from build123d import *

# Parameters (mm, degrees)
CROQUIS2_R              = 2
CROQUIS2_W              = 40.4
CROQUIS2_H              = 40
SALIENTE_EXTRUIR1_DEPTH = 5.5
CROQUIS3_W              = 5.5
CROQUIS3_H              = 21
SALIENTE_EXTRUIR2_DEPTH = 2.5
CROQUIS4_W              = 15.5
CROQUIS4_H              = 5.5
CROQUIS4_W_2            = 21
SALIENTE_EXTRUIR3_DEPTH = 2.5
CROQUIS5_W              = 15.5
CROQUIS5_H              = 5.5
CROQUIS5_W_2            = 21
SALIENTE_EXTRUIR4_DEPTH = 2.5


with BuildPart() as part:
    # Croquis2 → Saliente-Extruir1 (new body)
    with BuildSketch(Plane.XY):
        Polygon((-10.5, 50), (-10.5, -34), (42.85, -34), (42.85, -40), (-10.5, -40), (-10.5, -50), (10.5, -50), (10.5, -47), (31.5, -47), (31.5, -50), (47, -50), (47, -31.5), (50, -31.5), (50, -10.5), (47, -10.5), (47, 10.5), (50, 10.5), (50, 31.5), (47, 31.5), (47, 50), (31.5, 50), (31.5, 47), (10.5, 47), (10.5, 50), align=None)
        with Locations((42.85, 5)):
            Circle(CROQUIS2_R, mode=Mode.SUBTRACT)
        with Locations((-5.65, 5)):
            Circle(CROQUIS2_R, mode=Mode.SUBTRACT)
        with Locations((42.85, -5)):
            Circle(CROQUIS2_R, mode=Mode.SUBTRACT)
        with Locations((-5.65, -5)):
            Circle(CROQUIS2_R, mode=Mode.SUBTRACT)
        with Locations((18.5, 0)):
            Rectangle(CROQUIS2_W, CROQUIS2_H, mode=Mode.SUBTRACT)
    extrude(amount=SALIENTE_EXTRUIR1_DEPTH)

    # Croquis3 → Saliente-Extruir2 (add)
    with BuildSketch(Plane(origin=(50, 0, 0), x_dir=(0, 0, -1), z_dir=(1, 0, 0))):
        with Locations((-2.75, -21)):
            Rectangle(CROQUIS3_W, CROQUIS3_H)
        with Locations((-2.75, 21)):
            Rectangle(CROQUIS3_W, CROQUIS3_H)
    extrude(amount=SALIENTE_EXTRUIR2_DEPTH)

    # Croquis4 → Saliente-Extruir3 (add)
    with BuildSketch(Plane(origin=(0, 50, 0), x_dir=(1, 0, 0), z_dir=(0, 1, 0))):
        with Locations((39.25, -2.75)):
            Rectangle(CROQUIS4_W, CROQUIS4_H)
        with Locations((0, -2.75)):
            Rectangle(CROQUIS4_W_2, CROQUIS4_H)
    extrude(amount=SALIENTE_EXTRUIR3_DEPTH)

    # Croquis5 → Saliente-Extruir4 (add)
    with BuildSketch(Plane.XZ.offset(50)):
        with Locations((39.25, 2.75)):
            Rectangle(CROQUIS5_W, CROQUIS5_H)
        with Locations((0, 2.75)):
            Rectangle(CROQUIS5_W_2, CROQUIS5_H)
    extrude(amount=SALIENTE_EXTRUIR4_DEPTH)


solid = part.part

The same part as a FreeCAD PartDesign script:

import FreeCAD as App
import Part
import Sketcher


def add_polygon(sketch, points):
    """Adds a closed chain of lines whose ends are joined by coincident constraints."""
    first, n = sketch.GeometryCount, len(points)
    for a, b in zip(points, points[1:] + points[:1]):
        sketch.addGeometry(Part.LineSegment(App.Vector(*a, 0), App.Vector(*b, 0)), False)
    for i in range(n):
        sketch.addConstraint(Sketcher.Constraint("Coincident", first + i, 2, first + (i + 1) % n, 1))

doc = App.newDocument("Part")
body = doc.addObject("PartDesign::Body", "Body")

sketch1 = doc.addObject("Sketcher::SketchObject", "Sketch")
body.addObject(sketch1)
sketch1.AttachmentSupport = (doc.XY_Plane, [""])
sketch1.MapMode = "FlatFace"
add_polygon(sketch1, [(-10.5, 50), (-10.5, -34), (42.85, -34), (42.85, -40), (-10.5, -40), (-10.5, -50), (10.5, -50), (10.5, -47), (31.5, -47), (31.5, -50), (47, -50), (47, -31.5), (50, -31.5), (50, -10.5), (47, -10.5), (47, 10.5), (50, 10.5), (50, 31.5), (47, 31.5), (47, 50), (31.5, 50), (31.5, 47), (10.5, 47), (10.5, 50)])
sketch1.addGeometry(Part.Circle(App.Vector(-5.65, -5, 0), App.Vector(0, 0, 1), 2), False)
sketch1.addGeometry(Part.Circle(App.Vector(42.85, -5, 0), App.Vector(0, 0, 1), 2), False)
sketch1.addGeometry(Part.Circle(App.Vector(-5.65, 5, 0), App.Vector(0, 0, 1), 2), False)
add_polygon(sketch1, [(38.7, -20), (-1.7, -20), (-1.7, 20), (38.7, 20)])
sketch1.addGeometry(Part.Circle(App.Vector(42.85, 5, 0), App.Vector(0, 0, 1), 2), False)
sketch1.addConstraint([
    Sketcher.Constraint("Vertical", 0),
    Sketcher.Constraint("Horizontal", 1),
    Sketcher.Constraint("Vertical", 2),
    Sketcher.Constraint("Horizontal", 3),
    Sketcher.Constraint("Vertical", 4),
    Sketcher.Constraint("Horizontal", 5),
    Sketcher.Constraint("Vertical", 6),
    Sketcher.Constraint("Horizontal", 7),
    Sketcher.Constraint("Vertical", 8),
    Sketcher.Constraint("Horizontal", 9),
    Sketcher.Constraint("Vertical", 10),
    Sketcher.Constraint("Horizontal", 11),
    Sketcher.Constraint("Vertical", 12),
    Sketcher.Constraint("Horizontal", 13),
    Sketcher.Constraint("Vertical", 14),
    Sketcher.Constraint("Horizontal", 15),
    Sketcher.Constraint("Vertical", 16),
    Sketcher.Constraint("Horizontal", 17),
    Sketcher.Constraint("Vertical", 18),
    Sketcher.Constraint("Horizontal", 19),
    Sketcher.Constraint("Vertical", 20),
    Sketcher.Constraint("Horizontal", 21),
    Sketcher.Constraint("Vertical", 22),
    Sketcher.Constraint("Horizontal", 23),
    Sketcher.Constraint("Horizontal", 27),
    Sketcher.Constraint("Vertical", 28),
    Sketcher.Constraint("Horizontal", 29),
    Sketcher.Constraint("Vertical", 30),
    Sketcher.Constraint("Equal", 24, 25),
    Sketcher.Constraint("Equal", 25, 26),
    Sketcher.Constraint("Equal", 26, 31),
    Sketcher.Constraint("Symmetric", 4, 2, 22, 2, -1, 1),
    Sketcher.Constraint("Symmetric", 24, 3, 26, 3, -1),
    Sketcher.Constraint("Symmetric", 25, 3, 31, 3, -1),
    Sketcher.Constraint("Symmetric", 12, 2, 15, 2, -1),
    Sketcher.Constraint("Symmetric", 10, 2, 17, 2, -1),
    Sketcher.Constraint("Symmetric", 8, 2, 19, 2, -1),
    Sketcher.Constraint("Symmetric", 6, 2, 21, 2, -1),
    Sketcher.Constraint("Horizontal", 24, 3, 25, 3),
    Sketcher.Constraint("Horizontal", 5, 2, 8, 2),
    Sketcher.Constraint("Vertical", 31, 3, 1, 2),
    Sketcher.Constraint("Vertical", 0, 2, 3, 2),
    Sketcher.Constraint("Vertical", 10, 2, 13, 2),
    Sketcher.Constraint("Equal", 5, 7),
    Sketcher.Constraint("Equal", 17, 6),
    Sketcher.Constraint("Equal", 23, 12),
    Sketcher.Constraint("Equal", 12, 14),
    Sketcher.Constraint("Diameter", 24, 4.0),
    Sketcher.Constraint("DistanceX", 5, 1, 5, 2, 21.0),
    Sketcher.Constraint("DistanceX", 11, 1, 11, 2, 3.0),
    Sketcher.Constraint("DistanceY", 0, 2, 0, 1, 84.0),
    Sketcher.Constraint("DistanceY", 2, 2, 2, 1, 6.0),
    Sketcher.Constraint("DistanceY", 4, 2, 4, 1, 10.0),
    Sketcher.Constraint("DistanceY", 28, 1, 28, 2, 40.0),
    Sketcher.Constraint("DistanceX", 9, 1, 9, 2, 15.5),
    Sketcher.Constraint("DistanceX", 27, 2, 27, 1, 40.4),
    Sketcher.Constraint("DistanceY", 24, 3, -1, 1, 5.0),
    Sketcher.Constraint("DistanceY", 27, 2, -1, 1, 20.0),
    Sketcher.Constraint("DistanceX", 1, 1, 1, 2, 53.35),
    Sketcher.Constraint("DistanceX", 27, 2, -1, 1, 1.7),
    Sketcher.Constraint("DistanceX", 24, 3, 25, 3, 48.5),
])
pad1 = doc.addObject("PartDesign::Pad", "Pad")
body.addObject(pad1)
pad1.Profile = sketch1
pad1.Length = 5.5

sketch2 = doc.addObject("Sketcher::SketchObject", "Sketch001")
body.addObject(sketch2)
sketch2.AttachmentSupport = (doc.YZ_Plane, [""])
sketch2.MapMode = "FlatFace"
sketch2.AttachmentOffset = App.Placement(App.Vector(0, 0, 50), App.Rotation())
add_polygon(sketch2, [(-10.5, 5.5), (-31.5, 5.5), (-31.5, 0), (-10.5, 0)])
add_polygon(sketch2, [(31.5, 5.5), (10.5, 5.5), (10.5, 0), (31.5, 0)])
sketch2.addConstraint([
    Sketcher.Constraint("Horizontal", 0),
    Sketcher.Constraint("Vertical", 1),
    Sketcher.Constraint("Horizontal", 2),
    Sketcher.Constraint("Vertical", 3),
    Sketcher.Constraint("Horizontal", 4),
    Sketcher.Constraint("Vertical", 5),
    Sketcher.Constraint("Horizontal", 6),
    Sketcher.Constraint("Vertical", 7),
    Sketcher.Constraint("Symmetric", 2, 2, 5, 2, -1, 1),
    Sketcher.Constraint("Symmetric", 1, 2, 6, 2, -2),
    Sketcher.Constraint("Horizontal", 3, 2, 4, 2),
    Sketcher.Constraint("DistanceX", 0, 2, 0, 1, 21.0),
    Sketcher.Constraint("DistanceY", 1, 2, 1, 1, 5.5),
    Sketcher.Constraint("DistanceX", 3, 2, 4, 2, 21.0),
])
pad2 = doc.addObject("PartDesign::Pad", "Pad001")
body.addObject(pad2)
pad2.Profile = sketch2
pad2.Length = 2.5

sketch3 = doc.addObject("Sketcher::SketchObject", "Sketch002")
body.addObject(sketch3)
sketch3.AttachmentSupport = (doc.XZ_Plane, [""])
sketch3.MapMode = "FlatFace"
sketch3.AttachmentOffset = App.Placement(App.Vector(0, 0, -50), App.Rotation())
add_polygon(sketch3, [(31.5, 0), (31.5, 5.5), (47, 5.5), (47, 0)])
add_polygon(sketch3, [(-10.5, 0), (-10.5, 5.5), (10.5, 5.5), (10.5, 0)])
sketch3.addConstraint([
    Sketcher.Constraint("Vertical", 0),
    Sketcher.Constraint("Horizontal", 1),
    Sketcher.Constraint("Vertical", 2),
    Sketcher.Constraint("Horizontal", 3),
    Sketcher.Constraint("Vertical", 4),
    Sketcher.Constraint("Horizontal", 5),
    Sketcher.Constraint("Vertical", 6),
    Sketcher.Constraint("Horizontal", 7),
    Sketcher.Constraint("Symmetric", 6, 2, 7, 2, -1, 1),
    Sketcher.Constraint("PointOnObject", 2, 2, -1),
    Sketcher.Constraint("Horizontal", 1, 2, 4, 2),
    Sketcher.Constraint("DistanceX", 5, 1, 5, 2, 21.0),
    Sketcher.Constraint("DistanceX", 1, 1, 1, 2, 15.5),
    Sketcher.Constraint("DistanceY", 0, 1, 0, 2, 5.5),
    Sketcher.Constraint("DistanceX", -1, 1, 1, 2, 47.0),
])
pad3 = doc.addObject("PartDesign::Pad", "Pad002")
body.addObject(pad3)
pad3.Profile = sketch3
pad3.Length = 2.5
pad3.Reversed = True

sketch4 = doc.addObject("Sketcher::SketchObject", "Sketch003")
body.addObject(sketch4)
sketch4.AttachmentSupport = (doc.XZ_Plane, [""])
sketch4.MapMode = "FlatFace"
sketch4.AttachmentOffset = App.Placement(App.Vector(0, 0, 50), App.Rotation())
add_polygon(sketch4, [(31.5, 5.5), (31.5, 0), (47, 0), (47, 5.5)])
add_polygon(sketch4, [(-10.5, 5.5), (-10.5, 0), (10.5, 0), (10.5, 5.5)])
sketch4.addConstraint([
    Sketcher.Constraint("Vertical", 0),
    Sketcher.Constraint("Horizontal", 1),
    Sketcher.Constraint("Vertical", 2),
    Sketcher.Constraint("Horizontal", 3),
    Sketcher.Constraint("Vertical", 4),
    Sketcher.Constraint("Horizontal", 5),
    Sketcher.Constraint("Vertical", 6),
    Sketcher.Constraint("Horizontal", 7),
    Sketcher.Constraint("Symmetric", 4, 2, 5, 2, -1, 1),
    Sketcher.Constraint("PointOnObject", 0, 2, -1),
    Sketcher.Constraint("Horizontal", 3, 2, 6, 2),
    Sketcher.Constraint("DistanceX", 5, 1, 5, 2, 21.0),
    Sketcher.Constraint("DistanceX", 1, 1, 1, 2, 15.5),
    Sketcher.Constraint("DistanceY", 0, 2, 0, 1, 5.5),
    Sketcher.Constraint("DistanceX", -1, 1, 1, 2, 47.0),
])
pad4 = doc.addObject("PartDesign::Pad", "Pad003")
body.addObject(pad4)
pad4.Profile = sketch4
pad4.Length = 2.5

doc.recompute()
